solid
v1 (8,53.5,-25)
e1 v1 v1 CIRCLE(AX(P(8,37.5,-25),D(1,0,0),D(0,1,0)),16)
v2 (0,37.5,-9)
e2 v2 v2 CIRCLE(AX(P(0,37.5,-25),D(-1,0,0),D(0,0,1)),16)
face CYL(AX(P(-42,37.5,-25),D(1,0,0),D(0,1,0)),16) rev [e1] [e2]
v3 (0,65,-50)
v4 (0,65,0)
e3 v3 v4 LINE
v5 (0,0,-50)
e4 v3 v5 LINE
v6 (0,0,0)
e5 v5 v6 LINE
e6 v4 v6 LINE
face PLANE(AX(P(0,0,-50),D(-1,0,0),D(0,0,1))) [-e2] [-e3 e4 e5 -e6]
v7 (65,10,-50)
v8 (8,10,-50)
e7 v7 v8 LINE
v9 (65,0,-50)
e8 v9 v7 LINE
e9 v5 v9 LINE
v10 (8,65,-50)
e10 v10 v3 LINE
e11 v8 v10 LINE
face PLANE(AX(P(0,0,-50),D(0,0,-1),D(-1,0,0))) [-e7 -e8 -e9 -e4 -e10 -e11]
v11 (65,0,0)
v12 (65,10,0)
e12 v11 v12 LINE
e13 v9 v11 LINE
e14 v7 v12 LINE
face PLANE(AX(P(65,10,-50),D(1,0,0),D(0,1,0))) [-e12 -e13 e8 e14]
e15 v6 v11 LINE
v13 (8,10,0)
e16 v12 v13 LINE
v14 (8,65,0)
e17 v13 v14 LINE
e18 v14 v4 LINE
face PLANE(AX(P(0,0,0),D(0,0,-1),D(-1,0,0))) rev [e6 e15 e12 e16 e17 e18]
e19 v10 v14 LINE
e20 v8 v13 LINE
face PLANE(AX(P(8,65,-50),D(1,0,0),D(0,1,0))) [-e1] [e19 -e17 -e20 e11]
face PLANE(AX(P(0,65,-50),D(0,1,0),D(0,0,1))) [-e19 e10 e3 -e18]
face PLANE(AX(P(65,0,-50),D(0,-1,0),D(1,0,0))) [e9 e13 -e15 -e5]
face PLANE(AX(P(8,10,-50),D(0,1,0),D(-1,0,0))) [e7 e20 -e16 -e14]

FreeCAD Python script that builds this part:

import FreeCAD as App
import Part
import Sketcher


def add_polygon(sketch, points):
    """Adds a closed chain of lines whose ends are joined by coincident constraints."""
    first, n = sketch.GeometryCount, len(points)
    for a, b in zip(points, points[1:] + points[:1]):
        sketch.addGeometry(Part.LineSegment(App.Vector(*a, 0), App.Vector(*b, 0)), False)
    for i in range(n):
        sketch.addConstraint(Sketcher.Constraint("Coincident", first + i, 2, first + (i + 1) % n, 1))

doc = App.newDocument("Part")
params = doc.addObject("Spreadsheet::Sheet", "Params")
for row, (alias, value) in enumerate([
    ("sketch1_width", "8 mm"),
    ("sketch1_width2", "65 mm"),
    ("sketch1_height", "10 mm"),
    ("pad1_length", "50 mm"),
    ("sketch2_diameter", "32 mm"),
    ("pocket1_length", "50 mm"),
], start=1):
    params.set(f"A{row}", alias)
    params.set(f"B{row}", "=" + value)
    params.setAlias(f"B{row}", alias)

body = doc.addObject("PartDesign::Body", "Body")

# Sketch on XY plane
sketch1 = body.newObject("Sketcher::SketchObject", "Sketch")
sketch1.AttachmentSupport = (doc.getObject("XY_Plane"), [""])
sketch1.MapMode = "FlatFace"
add_polygon(sketch1, [(8, 65), (0, 65), (0, 0), (65, 0), (65, 10), (8, 10)])  # lines 0-5
sketch1.addConstraint(Sketcher.Constraint("Horizontal", 0))
sketch1.addConstraint(Sketcher.Constraint("Vertical", 1))
sketch1.addConstraint(Sketcher.Constraint("Horizontal", 2))
sketch1.addConstraint(Sketcher.Constraint("Vertical", 3))
sketch1.addConstraint(Sketcher.Constraint("Horizontal", 4))
sketch1.addConstraint(Sketcher.Constraint("Vertical", 5))
sketch1.addConstraint(Sketcher.Constraint("Coincident", 1, 2, -1, 1))
sketch1.addConstraint(Sketcher.Constraint("Equal", 2, 1))
sketch1.addConstraint(Sketcher.Constraint("DistanceX", 0, 2, 0, 1, 8.0))
sketch1.addConstraint(Sketcher.Constraint("DistanceX", 2, 1, 2, 2, 65.0))
sketch1.addConstraint(Sketcher.Constraint("DistanceY", 3, 1, 3, 2, 10.0))
sketch1.setExpression("Constraints[14]", "Params.sketch1_width")
sketch1.setExpression("Constraints[15]", "Params.sketch1_width2")
sketch1.setExpression("Constraints[16]", "Params.sketch1_height")
pad1 = body.newObject("PartDesign::Pad", "Pad")
pad1.Profile = sketch1
pad1.setExpression("Length", "Params.pad1_length")
pad1.Reversed = True

# Sketch on YZ plane
sketch2 = body.newObject("Sketcher::SketchObject", "Sketch001")
sketch2.AttachmentSupport = (doc.getObject("YZ_Plane"), [""])
sketch2.MapMode = "FlatFace"
sketch2.AttachmentOffset = App.Placement(App.Vector(0, 0, 8), App.Rotation())
sketch2.addGeometry(Part.Circle(App.Vector(38, -25, 0), App.Vector(0, 0, 1), 16), False)
sketch2.addConstraint(Sketcher.Constraint("Diameter", 0, 32.0))
sketch2.addConstraint(Sketcher.Constraint("DistanceY", 0, 3, -1, 1, 25.0))
sketch2.addConstraint(Sketcher.Constraint("DistanceX", -1, 1, 0, 3, 37.5))
sketch2.setExpression("Constraints[0]", "Params.sketch2_diameter")
pocket1 = body.newObject("PartDesign::Pocket", "Pocket")
pocket1.Profile = sketch2
pocket1.setExpression("Length", "Params.pocket1_length")

doc.recompute()
